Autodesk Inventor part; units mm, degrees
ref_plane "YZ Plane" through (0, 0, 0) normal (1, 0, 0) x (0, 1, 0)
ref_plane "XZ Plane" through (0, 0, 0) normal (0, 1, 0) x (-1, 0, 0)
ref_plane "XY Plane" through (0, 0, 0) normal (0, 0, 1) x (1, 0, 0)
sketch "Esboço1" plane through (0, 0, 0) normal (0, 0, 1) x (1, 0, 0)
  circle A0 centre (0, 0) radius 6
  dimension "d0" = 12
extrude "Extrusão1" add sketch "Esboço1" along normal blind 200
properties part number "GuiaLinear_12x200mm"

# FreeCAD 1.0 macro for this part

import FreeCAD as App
import Part
import Sketcher

doc = App.newDocument("Part")
params = doc.addObject("Spreadsheet::Sheet", "Params")
for row, (alias, value) in enumerate([
    ("sketch1_diameter", "12 mm"),
    ("pad1_length", "200 mm"),
], start=1):
    params.set(f"A{row}", alias)
    params.set(f"B{row}", "=" + value)
    params.setAlias(f"B{row}", alias)

body = doc.addObject("PartDesign::Body", "Body")

sketch1 = body.newObject("Sketcher::SketchObject", "Sketch")
sketch1.AttachmentSupport = (doc.getObject("XY_Plane"), [""])
sketch1.MapMode = "FlatFace"
sketch1.addGeometry(Part.Circle(App.Vector(0, 0, 0), App.Vector(0, 0, 1), 6), False)
sketch1.addConstraint([
    Sketcher.Constraint("Coincident", 0, 3, -1, 1),
    Sketcher.Constraint("Diameter", 0, 12.0),
])
sketch1.setExpression("Constraints[1]", "Params.sketch1_diameter")
pad1 = body.newObject("PartDesign::Pad", "Pad")
pad1.Profile = sketch1
pad1.setExpression("Length", "Params.pad1_length")

doc.recompute()
